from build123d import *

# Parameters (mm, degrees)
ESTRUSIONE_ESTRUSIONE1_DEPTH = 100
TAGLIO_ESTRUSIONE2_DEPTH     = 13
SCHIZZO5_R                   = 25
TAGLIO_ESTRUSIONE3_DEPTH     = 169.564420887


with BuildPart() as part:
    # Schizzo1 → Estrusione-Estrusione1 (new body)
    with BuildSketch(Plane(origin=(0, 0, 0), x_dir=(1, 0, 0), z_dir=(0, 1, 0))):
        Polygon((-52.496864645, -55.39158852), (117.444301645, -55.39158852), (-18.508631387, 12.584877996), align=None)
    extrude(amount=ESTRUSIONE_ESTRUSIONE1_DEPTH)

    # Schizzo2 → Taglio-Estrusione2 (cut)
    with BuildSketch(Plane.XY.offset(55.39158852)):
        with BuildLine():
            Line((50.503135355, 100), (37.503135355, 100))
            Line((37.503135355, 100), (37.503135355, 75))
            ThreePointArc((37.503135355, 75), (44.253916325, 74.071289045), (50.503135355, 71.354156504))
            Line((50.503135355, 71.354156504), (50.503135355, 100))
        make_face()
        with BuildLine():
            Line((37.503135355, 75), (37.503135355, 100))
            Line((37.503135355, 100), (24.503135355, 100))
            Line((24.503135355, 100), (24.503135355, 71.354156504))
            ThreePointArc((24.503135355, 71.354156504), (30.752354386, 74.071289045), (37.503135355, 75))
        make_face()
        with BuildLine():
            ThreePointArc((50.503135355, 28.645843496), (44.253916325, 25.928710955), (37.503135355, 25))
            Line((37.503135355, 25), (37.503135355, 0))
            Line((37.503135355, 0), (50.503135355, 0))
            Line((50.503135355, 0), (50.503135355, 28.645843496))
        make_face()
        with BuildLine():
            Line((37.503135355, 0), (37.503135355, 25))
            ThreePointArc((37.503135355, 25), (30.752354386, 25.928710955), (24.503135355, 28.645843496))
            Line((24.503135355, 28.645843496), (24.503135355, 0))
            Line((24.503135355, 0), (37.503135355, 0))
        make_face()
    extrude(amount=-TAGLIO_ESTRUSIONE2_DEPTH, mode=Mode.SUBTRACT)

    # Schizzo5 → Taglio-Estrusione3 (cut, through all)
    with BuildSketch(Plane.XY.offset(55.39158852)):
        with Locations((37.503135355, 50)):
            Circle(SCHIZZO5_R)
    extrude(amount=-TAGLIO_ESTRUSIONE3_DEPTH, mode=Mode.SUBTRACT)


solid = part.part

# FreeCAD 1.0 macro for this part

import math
import FreeCAD as App
import Part
import Sketcher
from FreeCAD import Vector
Q = App.Units.Quantity

doc = App.newDocument("Part")
params = doc.addObject("Spreadsheet::Sheet", "Params")
for row, (alias, value) in enumerate([
    ("sketch1_length", "152 mm"),
    ("sketch1_length2", "76 mm"),
    ("pad1_length", "100 mm"),
    ("sketch2_radius", "25 mm"),
    ("sketch2_width", "26 mm"),
    ("pocket1_length", "13 mm"),
    ("sketch3_diameter", "50 mm"),
], start=1):
    params.set(f"A{row}", alias)
    params.set(f"B{row}", "=" + value)
    params.setAlias(f"B{row}", alias)

body = doc.addObject("PartDesign::Body", "Body")

# Sketch on XZ plane
sketch1 = body.newObject("Sketcher::SketchObject", "Sketch")
sketch1.AttachmentSupport = (doc.getObject("XZ_Plane"), [""])
sketch1.MapMode = "FlatFace"
sketch1.addGeometry(Part.LineSegment(Vector(-52.496865, 55.391589, 0), Vector(117.444302, 55.391589, 0)), False)
sketch1.addGeometry(Part.LineSegment(Vector(117.444302, 55.391589, 0), Vector(-18.508631, -12.584878, 0)), False)
sketch1.addGeometry(Part.LineSegment(Vector(-18.508631, -12.584878, 0), Vector(-52.496865, 55.391589, 0)), False)
sketch1.addConstraint(Sketcher.Constraint("Coincident", 0, 2, 1, 1))
sketch1.addConstraint(Sketcher.Constraint("Coincident", 1, 2, 2, 1))
sketch1.addConstraint(Sketcher.Constraint("Coincident", 2, 2, 0, 1))
sketch1.addConstraint(Sketcher.Constraint("Horizontal", 0))
sketch1.addConstraint(Sketcher.Constraint("Perpendicular", 1, 2))
sketch1.addConstraint(Sketcher.Constraint("Distance", 1, Q("152 mm")))
sketch1.addConstraint(Sketcher.Constraint("Distance", 2, Q("76 mm")))
sketch1.addConstraint(Sketcher.Constraint("DistanceX", -1, 1, 0, 2, Q("117.444302 mm")))
sketch1.addConstraint(Sketcher.Constraint("DistanceY", -1, 1, 0, 2, Q("55.391589 mm")))
sketch1.setExpression("Constraints[5]", "Params.sketch1_length")
sketch1.setExpression("Constraints[6]", "Params.sketch1_length2")
pad1 = body.newObject("PartDesign::Pad", "Pad")
pad1.Profile = sketch1
pad1.setExpression("Length", "Params.pad1_length")
pad1.Reversed = True

# Sketch on XY plane
sketch2 = body.newObject("Sketcher::SketchObject", "Sketch001")
sketch2.AttachmentSupport = (doc.getObject("XY_Plane"), [""])
sketch2.MapMode = "FlatFace"
sketch2.AttachmentOffset = App.Placement(Vector(0, 0, 55.391589), App.Rotation())
sketch2.addGeometry(Part.LineSegment(Vector(50.503135, 100, 0), Vector(24.503135, 100, 0)), False)
sketch2.addGeometry(Part.LineSegment(Vector(24.503135, 100, 0), Vector(24.503135, 71.354157, 0)), False)
sketch2.addGeometry(Part.ArcOfCircle(Part.Circle(Vector(37.503135, 50, 0), Vector(0, 0, 1), 25), math.radians(90), math.radians(121.332251)), False)
sketch2.addGeometry(Part.ArcOfCircle(Part.Circle(Vector(37.503135, 50, 0), Vector(0, 0, 1), 25), math.radians(58.667749), math.radians(90)), False)
sketch2.addGeometry(Part.LineSegment(Vector(50.503135, 71.354157, 0), Vector(50.503135, 100, 0)), False)
sketch2.addGeometry(Part.ArcOfCircle(Part.Circle(Vector(37.503135, 50, 0), Vector(0, 0, 1), 25), math.radians(-90), math.radians(-58.667749)), False)
sketch2.addGeometry(Part.ArcOfCircle(Part.Circle(Vector(37.503135, 50, 0), Vector(0, 0, 1), 25), math.radians(-121.332251), math.radians(-90)), False)
sketch2.addGeometry(Part.LineSegment(Vector(24.503135, 28.645843, 0), Vector(24.503135, 0, 0)), False)
sketch2.addGeometry(Part.LineSegment(Vector(24.503135, 0, 0), Vector(50.503135, 0, 0)), False)
sketch2.addGeometry(Part.LineSegment(Vector(50.503135, 0, 0), Vector(50.503135, 28.645843, 0)), False)
sketch2.addConstraint(Sketcher.Constraint("Coincident", 0, 2, 1, 1))
sketch2.addConstraint(Sketcher.Constraint("Coincident", 1, 2, 2, 2))
sketch2.addConstraint(Sketcher.Constraint("Tangent", 2, 1, 3, 2))
sketch2.addConstraint(Sketcher.Constraint("Coincident", 3, 1, 4, 1))
sketch2.addConstraint(Sketcher.Constraint("Coincident", 4, 2, 0, 1))
sketch2.addConstraint(Sketcher.Constraint("Tangent", 5, 1, 6, 2))
sketch2.addConstraint(Sketcher.Constraint("Coincident", 6, 1, 7, 1))
sketch2.addConstraint(Sketcher.Constraint("Coincident", 7, 2, 8, 1))
sketch2.addConstraint(Sketcher.Constraint("Coincident", 8, 2, 9, 1))
sketch2.addConstraint(Sketcher.Constraint("Coincident", 9, 2, 5, 2))
sketch2.addConstraint(Sketcher.Constraint("Horizontal", 0))
sketch2.addConstraint(Sketcher.Constraint("Vertical", 1))
sketch2.addConstraint(Sketcher.Constraint("Vertical", 4))
sketch2.addConstraint(Sketcher.Constraint("Vertical", 7))
sketch2.addConstraint(Sketcher.Constraint("Horizontal", 8))
sketch2.addConstraint(Sketcher.Constraint("Vertical", 9))
sketch2.addConstraint(Sketcher.Constraint("Coincident", 5, 3, 2, 3))
sketch2.addConstraint(Sketcher.Constraint("Equal", 2, 3))
sketch2.addConstraint(Sketcher.Constraint("Equal", 3, 5))
sketch2.addConstraint(Sketcher.Constraint("Equal", 5, 6))
sketch2.addConstraint(Sketcher.Constraint("PointOnObject", 7, 2, -1))
sketch2.addConstraint(Sketcher.Constraint("Horizontal", 1, 2, 3, 1))
sketch2.addConstraint(Sketcher.Constraint("Horizontal", 6, 1, 9, 2))
sketch2.addConstraint(Sketcher.Constraint("Vertical", 6, 3, 2, 1))
sketch2.addConstraint(Sketcher.Constraint("Vertical", 2, 1, 5, 1))
sketch2.addConstraint(Sketcher.Constraint("Vertical", 1, 2, 6, 1))
sketch2.addConstraint(Sketcher.Constraint("Equal", 4, 7))
sketch2.addConstraint(Sketcher.Constraint("Radius", 2, Q("25 mm")))
sketch2.addConstraint(Sketcher.Constraint("DistanceX", 0, 2, 0, 1, Q("26 mm")))
sketch2.addConstraint(Sketcher.Constraint("DistanceY", -1, 1, 2, 3, Q("50 mm")))
sketch2.addConstraint(Sketcher.Constraint("DistanceX", -1, 1, 2, 3, Q("37.503135 mm")))
sketch2.setExpression("Constraints[27]", "Params.sketch2_radius")
sketch2.setExpression("Constraints[28]", "Params.sketch2_width")
pocket1 = body.newObject("PartDesign::Pocket", "Pocket")
pocket1.Profile = sketch2
pocket1.setExpression("Length", "Params.pocket1_length")

# Sketch on XY plane
sketch3 = body.newObject("Sketcher::SketchObject", "Sketch002")
sketch3.AttachmentSupport = (doc.getObject("XY_Plane"), [""])
sketch3.MapMode = "FlatFace"
sketch3.AttachmentOffset = App.Placement(Vector(0, 0, 55.391589), App.Rotation())
sketch3.addGeometry(Part.Circle(Vector(37.503135, 50, 0), Vector(0, 0, 1), 25), False)
sketch3.addConstraint(Sketcher.Constraint("Diameter", 0, Q("50 mm")))
sketch3.addConstraint(Sketcher.Constraint("DistanceY", -1, 1, 0, 3, Q("50 mm")))
sketch3.addConstraint(Sketcher.Constraint("DistanceX", -1, 1, 0, 3, Q("37.503135 mm")))
sketch3.setExpression("Constraints[0]", "Params.sketch3_diameter")
pocket2 = body.newObject("PartDesign::Pocket", "Pocket001")
pocket2.Profile = sketch3
pocket2.Type = "ThroughAll"

doc.recompute()
